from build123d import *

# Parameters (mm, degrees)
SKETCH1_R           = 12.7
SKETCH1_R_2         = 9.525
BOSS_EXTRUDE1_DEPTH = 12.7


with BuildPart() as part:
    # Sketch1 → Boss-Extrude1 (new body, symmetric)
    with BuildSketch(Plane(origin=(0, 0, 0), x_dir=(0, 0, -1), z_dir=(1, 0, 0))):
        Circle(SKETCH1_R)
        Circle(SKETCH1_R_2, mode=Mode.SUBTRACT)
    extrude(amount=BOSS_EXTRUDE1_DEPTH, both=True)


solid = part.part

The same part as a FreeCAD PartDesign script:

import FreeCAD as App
import Part
import Sketcher
from FreeCAD import Vector
Q = App.Units.Quantity

doc = App.newDocument("Part")
body = doc.addObject("PartDesign::Body", "Body")

sketch1 = doc.addObject("Sketcher::SketchObject", "Sketch")
body.addObject(sketch1)
sketch1.AttachmentSupport = (doc.YZ_Plane, [""])
sketch1.MapMode = "FlatFace"
sketch1.addGeometry([
    Part.Circle(Vector(0, 0, 0), Vector(0, 0, 1), 12.7),
    Part.Circle(Vector(0, 0, 0), Vector(0, 0, 1), 9.525),
], False)
sketch1.addConstraint([
    Sketcher.Constraint("Coincident", 0, 3, -1, 1),
    Sketcher.Constraint("Coincident", 1, 3, -1, 1),
    Sketcher.Constraint("Diameter", 0, Q("1 in")),
    Sketcher.Constraint("Diameter", 1, Q("0.75 in")),
])
pad1 = doc.addObject("PartDesign::Pad", "Pad")
body.addObject(pad1)
pad1.Profile = sketch1
pad1.Length = Q("1 in")
pad1.Midplane = True

doc.recompute()
